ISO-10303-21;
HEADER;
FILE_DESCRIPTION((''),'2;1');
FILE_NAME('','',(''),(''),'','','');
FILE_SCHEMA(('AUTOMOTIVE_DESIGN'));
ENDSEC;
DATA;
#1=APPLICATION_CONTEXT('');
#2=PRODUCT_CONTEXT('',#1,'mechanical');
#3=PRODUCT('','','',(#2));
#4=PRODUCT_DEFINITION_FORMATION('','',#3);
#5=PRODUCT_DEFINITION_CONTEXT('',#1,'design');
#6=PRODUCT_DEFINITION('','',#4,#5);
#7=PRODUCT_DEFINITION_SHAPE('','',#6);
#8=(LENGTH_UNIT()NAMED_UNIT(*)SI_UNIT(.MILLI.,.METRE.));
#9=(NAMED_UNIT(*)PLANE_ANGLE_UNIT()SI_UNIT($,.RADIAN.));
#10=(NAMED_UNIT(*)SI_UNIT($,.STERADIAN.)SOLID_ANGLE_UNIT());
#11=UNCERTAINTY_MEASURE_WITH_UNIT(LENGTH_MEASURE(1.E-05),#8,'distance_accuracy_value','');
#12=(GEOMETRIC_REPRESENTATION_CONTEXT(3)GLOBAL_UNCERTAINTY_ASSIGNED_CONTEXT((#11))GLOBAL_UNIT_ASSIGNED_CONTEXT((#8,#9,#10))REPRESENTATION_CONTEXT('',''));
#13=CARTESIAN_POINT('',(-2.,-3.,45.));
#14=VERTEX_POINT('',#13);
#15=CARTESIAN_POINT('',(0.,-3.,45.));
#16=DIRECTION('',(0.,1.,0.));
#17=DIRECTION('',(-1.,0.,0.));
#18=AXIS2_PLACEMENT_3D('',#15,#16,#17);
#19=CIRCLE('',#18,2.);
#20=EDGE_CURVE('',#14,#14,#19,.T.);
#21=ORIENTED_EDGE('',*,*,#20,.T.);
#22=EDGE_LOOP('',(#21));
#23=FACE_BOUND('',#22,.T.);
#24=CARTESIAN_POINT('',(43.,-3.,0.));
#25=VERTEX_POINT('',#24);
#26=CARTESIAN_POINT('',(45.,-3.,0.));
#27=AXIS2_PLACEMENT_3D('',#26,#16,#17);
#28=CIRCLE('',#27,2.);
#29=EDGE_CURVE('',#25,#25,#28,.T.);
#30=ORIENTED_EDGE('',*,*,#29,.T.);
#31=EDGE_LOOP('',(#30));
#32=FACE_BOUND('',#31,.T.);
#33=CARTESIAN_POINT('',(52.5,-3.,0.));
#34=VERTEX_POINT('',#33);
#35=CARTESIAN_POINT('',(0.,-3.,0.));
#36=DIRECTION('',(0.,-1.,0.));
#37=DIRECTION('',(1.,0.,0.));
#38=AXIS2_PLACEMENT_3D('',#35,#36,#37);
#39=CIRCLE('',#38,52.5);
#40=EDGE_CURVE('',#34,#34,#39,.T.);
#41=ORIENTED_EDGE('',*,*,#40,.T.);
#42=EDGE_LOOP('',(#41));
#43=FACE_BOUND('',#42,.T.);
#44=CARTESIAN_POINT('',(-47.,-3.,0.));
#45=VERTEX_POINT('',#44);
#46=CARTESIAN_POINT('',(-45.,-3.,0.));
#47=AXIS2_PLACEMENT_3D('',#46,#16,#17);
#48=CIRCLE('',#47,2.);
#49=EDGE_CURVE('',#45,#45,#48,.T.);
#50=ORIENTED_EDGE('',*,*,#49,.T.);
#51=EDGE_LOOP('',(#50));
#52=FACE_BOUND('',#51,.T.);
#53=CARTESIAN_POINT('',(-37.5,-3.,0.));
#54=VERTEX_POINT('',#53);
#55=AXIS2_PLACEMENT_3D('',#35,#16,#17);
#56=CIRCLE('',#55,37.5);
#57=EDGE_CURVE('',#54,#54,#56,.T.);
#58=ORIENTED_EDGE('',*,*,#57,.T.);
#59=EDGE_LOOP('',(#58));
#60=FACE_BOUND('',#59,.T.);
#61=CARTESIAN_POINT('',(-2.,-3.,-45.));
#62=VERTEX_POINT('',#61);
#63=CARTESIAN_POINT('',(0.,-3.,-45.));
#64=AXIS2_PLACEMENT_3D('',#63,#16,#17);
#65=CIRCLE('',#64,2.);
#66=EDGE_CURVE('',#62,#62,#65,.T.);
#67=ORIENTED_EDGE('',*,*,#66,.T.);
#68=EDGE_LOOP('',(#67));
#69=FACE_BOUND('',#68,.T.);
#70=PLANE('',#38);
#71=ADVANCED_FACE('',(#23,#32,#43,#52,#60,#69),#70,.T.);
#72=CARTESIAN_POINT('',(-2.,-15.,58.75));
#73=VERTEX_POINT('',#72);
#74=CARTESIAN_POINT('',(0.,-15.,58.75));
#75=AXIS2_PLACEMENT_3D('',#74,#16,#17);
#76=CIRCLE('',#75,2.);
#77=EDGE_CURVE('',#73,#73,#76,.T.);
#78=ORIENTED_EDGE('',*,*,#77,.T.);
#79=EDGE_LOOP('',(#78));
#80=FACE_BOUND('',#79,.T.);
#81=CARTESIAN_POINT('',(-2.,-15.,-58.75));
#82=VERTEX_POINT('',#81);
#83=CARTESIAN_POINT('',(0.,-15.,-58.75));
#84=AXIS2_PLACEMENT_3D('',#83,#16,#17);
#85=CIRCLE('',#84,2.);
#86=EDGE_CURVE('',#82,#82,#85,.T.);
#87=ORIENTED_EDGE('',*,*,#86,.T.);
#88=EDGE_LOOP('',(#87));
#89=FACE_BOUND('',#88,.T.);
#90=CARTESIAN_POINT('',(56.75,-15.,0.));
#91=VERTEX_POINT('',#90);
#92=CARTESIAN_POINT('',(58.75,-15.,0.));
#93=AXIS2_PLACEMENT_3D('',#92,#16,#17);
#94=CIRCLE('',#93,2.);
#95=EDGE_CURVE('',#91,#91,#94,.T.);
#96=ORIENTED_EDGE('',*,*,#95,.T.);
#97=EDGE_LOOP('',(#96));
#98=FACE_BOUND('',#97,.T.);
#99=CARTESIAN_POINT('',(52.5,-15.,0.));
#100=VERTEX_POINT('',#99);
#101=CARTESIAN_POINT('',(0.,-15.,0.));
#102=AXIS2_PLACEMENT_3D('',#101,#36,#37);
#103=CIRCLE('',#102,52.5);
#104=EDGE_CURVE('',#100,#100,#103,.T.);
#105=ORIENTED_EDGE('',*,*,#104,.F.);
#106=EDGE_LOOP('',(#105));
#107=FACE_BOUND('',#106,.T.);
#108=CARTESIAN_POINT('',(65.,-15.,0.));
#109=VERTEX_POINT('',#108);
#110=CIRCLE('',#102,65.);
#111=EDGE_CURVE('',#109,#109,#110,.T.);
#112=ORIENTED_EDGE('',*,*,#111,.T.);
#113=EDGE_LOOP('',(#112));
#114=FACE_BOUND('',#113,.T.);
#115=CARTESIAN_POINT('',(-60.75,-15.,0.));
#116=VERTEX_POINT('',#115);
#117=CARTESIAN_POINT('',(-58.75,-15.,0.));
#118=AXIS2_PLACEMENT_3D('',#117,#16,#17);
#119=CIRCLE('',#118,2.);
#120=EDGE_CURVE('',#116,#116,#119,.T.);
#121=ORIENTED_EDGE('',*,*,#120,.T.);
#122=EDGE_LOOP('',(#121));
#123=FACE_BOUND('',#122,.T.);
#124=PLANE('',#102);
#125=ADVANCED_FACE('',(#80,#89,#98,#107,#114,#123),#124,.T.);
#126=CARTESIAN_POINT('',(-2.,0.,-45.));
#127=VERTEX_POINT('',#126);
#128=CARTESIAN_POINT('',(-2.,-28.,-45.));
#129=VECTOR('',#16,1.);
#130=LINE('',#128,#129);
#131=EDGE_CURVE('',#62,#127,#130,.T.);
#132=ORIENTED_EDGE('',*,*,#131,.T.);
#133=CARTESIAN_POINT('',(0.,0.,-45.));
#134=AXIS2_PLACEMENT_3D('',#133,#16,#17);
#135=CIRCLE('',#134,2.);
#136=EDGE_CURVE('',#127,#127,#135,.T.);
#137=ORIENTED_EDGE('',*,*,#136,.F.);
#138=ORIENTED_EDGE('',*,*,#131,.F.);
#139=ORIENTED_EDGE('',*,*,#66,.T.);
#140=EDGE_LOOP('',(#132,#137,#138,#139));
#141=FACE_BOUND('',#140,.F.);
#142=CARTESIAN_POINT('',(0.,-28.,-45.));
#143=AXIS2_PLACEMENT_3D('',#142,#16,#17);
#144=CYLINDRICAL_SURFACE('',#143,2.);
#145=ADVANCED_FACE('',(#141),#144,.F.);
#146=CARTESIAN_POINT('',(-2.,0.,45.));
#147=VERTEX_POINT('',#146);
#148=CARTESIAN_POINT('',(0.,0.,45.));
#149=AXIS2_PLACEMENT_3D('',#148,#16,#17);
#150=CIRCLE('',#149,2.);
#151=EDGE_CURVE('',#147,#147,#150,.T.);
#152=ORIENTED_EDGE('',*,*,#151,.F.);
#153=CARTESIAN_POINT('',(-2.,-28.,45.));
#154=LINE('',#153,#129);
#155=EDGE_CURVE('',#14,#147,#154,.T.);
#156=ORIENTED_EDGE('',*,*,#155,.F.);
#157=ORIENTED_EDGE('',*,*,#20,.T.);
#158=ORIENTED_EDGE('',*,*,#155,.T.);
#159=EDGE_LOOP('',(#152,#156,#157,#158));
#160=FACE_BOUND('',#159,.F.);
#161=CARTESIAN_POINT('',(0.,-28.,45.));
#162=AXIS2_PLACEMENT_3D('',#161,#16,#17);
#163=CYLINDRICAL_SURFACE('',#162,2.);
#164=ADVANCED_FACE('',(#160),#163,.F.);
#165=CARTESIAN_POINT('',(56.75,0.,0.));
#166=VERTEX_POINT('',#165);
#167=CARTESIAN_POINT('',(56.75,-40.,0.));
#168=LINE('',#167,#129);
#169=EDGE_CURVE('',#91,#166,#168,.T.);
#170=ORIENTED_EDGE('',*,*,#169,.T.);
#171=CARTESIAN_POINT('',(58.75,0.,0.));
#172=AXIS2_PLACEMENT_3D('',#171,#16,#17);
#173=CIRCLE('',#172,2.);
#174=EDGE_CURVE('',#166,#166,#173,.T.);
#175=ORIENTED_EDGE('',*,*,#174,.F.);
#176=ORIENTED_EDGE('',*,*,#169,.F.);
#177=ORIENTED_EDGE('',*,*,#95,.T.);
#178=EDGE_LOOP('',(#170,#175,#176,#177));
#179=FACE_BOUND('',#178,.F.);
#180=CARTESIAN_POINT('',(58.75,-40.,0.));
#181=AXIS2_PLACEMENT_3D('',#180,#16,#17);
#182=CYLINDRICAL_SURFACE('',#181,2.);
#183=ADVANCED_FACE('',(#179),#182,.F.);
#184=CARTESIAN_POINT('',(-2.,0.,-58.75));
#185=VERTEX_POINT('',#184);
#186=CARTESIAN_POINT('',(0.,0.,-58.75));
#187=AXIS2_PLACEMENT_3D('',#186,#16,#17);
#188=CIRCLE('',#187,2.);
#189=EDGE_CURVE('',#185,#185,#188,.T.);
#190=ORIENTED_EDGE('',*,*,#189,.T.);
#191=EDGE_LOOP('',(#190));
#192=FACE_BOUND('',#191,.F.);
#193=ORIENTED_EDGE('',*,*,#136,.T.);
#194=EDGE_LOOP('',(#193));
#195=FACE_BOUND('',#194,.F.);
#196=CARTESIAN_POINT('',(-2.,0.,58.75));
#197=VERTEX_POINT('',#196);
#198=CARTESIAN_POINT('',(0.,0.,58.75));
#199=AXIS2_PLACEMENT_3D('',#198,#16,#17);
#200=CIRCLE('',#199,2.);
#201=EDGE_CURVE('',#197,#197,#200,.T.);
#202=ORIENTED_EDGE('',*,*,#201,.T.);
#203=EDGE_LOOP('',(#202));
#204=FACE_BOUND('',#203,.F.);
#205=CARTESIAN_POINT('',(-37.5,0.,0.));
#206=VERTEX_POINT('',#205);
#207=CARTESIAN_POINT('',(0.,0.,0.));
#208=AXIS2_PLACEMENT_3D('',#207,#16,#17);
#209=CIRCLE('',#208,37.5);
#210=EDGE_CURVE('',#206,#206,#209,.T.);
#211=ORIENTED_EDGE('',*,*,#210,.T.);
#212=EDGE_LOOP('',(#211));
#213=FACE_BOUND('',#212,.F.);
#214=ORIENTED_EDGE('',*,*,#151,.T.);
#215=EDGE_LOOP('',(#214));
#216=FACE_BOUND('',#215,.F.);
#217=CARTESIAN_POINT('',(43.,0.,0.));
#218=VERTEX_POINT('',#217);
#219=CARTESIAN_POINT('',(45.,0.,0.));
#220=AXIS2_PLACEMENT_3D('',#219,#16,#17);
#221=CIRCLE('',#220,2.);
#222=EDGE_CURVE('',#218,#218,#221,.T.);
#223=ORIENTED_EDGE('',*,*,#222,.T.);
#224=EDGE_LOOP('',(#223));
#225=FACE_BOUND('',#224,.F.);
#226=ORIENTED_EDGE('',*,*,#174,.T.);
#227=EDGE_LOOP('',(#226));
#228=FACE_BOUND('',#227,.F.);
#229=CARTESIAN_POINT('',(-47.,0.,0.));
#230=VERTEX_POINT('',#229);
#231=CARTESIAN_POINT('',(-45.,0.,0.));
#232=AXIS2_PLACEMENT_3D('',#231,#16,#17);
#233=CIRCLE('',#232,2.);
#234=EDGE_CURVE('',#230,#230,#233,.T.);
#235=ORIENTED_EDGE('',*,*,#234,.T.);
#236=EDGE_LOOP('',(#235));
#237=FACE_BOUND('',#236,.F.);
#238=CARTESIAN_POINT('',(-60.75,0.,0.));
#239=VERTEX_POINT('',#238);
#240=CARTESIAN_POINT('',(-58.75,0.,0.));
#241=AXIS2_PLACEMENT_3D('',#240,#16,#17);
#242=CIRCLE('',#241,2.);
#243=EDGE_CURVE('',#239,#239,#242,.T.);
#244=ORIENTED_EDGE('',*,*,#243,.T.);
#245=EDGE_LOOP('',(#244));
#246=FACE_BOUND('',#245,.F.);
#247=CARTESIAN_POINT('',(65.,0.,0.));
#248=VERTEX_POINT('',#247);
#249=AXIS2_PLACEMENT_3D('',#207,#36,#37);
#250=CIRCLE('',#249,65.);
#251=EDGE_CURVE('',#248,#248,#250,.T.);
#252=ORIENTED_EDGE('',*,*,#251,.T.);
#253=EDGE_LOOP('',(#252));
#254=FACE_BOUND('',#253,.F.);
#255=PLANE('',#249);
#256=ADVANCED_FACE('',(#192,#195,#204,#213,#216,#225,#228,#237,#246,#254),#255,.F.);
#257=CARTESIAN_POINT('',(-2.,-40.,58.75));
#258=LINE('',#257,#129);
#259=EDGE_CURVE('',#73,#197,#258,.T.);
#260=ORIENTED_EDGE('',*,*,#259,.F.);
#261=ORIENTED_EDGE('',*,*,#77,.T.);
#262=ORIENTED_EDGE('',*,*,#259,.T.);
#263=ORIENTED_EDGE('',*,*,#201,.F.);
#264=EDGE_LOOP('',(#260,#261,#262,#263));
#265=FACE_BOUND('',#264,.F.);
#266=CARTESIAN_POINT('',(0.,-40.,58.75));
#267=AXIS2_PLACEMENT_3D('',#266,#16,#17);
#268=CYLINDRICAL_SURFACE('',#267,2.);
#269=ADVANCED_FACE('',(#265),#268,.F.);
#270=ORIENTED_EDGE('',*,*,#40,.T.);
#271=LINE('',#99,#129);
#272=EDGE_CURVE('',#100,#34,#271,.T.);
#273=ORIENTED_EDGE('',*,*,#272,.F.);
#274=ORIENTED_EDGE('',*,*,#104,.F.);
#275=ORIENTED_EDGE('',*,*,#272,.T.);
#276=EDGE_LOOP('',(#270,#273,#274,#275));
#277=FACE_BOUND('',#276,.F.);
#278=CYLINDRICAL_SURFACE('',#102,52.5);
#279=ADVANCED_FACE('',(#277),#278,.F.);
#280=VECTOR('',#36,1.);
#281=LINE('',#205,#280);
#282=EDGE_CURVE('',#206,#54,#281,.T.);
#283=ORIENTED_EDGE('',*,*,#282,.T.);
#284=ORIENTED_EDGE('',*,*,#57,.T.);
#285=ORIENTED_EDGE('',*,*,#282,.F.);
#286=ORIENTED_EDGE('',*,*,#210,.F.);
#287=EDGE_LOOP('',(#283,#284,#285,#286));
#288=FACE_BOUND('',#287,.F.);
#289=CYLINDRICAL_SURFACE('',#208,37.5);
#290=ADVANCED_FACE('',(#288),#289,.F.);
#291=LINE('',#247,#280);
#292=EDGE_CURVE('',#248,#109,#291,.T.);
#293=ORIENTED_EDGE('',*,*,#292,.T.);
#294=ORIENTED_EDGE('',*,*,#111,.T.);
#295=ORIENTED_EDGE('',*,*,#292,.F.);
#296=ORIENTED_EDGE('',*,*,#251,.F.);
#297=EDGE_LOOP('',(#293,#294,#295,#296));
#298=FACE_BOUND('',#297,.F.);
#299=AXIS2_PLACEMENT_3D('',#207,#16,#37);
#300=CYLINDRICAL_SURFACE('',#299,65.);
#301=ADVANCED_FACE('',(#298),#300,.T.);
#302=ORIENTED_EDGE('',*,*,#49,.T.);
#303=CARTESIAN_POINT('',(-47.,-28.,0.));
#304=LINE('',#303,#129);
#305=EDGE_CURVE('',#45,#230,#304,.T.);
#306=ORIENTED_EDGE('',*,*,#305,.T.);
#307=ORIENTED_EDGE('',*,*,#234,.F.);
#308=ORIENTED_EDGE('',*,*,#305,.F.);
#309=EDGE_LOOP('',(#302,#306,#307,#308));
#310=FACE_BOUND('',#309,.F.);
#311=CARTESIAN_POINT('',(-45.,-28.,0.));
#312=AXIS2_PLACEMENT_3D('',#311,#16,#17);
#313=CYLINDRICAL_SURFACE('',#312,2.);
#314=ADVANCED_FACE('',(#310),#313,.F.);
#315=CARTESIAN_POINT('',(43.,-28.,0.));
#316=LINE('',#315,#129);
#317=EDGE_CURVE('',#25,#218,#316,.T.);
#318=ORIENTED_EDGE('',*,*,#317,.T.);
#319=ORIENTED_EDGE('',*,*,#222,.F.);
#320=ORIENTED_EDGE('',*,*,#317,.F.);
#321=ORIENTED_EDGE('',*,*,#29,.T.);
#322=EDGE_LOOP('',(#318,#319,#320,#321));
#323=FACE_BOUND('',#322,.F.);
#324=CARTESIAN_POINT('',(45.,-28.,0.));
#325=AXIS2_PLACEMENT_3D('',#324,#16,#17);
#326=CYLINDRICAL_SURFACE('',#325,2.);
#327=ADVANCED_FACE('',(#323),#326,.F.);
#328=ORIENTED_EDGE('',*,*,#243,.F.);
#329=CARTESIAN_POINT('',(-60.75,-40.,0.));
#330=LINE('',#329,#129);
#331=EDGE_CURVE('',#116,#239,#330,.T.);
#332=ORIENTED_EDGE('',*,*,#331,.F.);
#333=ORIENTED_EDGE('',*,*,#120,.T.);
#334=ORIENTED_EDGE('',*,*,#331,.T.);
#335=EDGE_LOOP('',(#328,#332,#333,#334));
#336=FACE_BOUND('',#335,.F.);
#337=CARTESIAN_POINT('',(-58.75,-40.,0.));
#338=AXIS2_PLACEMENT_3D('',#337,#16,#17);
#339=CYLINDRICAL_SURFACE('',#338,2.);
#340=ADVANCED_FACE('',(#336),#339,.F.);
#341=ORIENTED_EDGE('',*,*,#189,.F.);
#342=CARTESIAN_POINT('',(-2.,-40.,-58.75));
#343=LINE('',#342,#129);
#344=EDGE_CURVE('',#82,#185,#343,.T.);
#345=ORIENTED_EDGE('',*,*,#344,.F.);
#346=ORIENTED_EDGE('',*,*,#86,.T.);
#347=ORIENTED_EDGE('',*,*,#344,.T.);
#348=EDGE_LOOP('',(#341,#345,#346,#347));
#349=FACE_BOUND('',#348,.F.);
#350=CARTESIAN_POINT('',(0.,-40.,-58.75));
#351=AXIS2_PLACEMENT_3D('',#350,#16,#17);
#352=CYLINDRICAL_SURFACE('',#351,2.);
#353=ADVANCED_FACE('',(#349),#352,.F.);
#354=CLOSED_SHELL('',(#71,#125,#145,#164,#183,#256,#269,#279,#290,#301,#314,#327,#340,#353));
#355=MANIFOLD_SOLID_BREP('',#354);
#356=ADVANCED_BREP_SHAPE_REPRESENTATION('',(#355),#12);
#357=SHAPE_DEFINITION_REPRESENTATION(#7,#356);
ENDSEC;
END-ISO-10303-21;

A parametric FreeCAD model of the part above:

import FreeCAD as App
import Part
import Sketcher

V = App.Vector

doc = App.newDocument("Part")
params = doc.addObject("Spreadsheet::Sheet", "Params")
for row, (alias, value) in enumerate([
    ("sketch1_diameter", "130 mm"),
    ("pad1_length", "15 mm"),
    ("sketch2_diameter", "105 mm"),
    ("pocket1_length", "12 mm"),
    ("sketch3_diameter", "4 mm"),
    ("hole_diameter", "4 mm"),
    ("hole_depth", "25 mm"),
    ("sketch4_diameter", "4 mm"),
    ("hole2_diameter", "4 mm"),
    ("hole2_depth", "25 mm"),
    ("sketch5_diameter", "75 mm"),
    ("pocket2_length", "25 mm"),
], start=1):
    params.set(f"A{row}", alias)
    params.set(f"B{row}", "=" + value)
    params.setAlias(f"B{row}", alias)

body = doc.addObject("PartDesign::Body", "Body")

sketch1 = doc.addObject("Sketcher::SketchObject", "Sketch")
body.addObject(sketch1)
sketch1.AttachmentSupport = (doc.XZ_Plane, [""])
sketch1.MapMode = "FlatFace"
sketch1.addGeometry(Part.Circle(V(0, 0, 0), V(0, 0, 1), 65), False)
sketch1.addConstraint([
    Sketcher.Constraint("Coincident", 0, 3, -1, 1),
    Sketcher.Constraint("Diameter", 0, 130.0),
])
sketch1.setExpression("Constraints[1]", "Params.sketch1_diameter")
pad1 = doc.addObject("PartDesign::Pad", "Pad")
body.addObject(pad1)
pad1.Profile = sketch1
pad1.setExpression("Length", "Params.pad1_length")

sketch2 = doc.addObject("Sketcher::SketchObject", "Sketch001")
body.addObject(sketch2)
sketch2.AttachmentSupport = (doc.XZ_Plane, [""])
sketch2.MapMode = "FlatFace"
sketch2.AttachmentOffset = App.Placement(V(0, 0, 15), App.Rotation())
sketch2.addGeometry(Part.Circle(V(0, 0, 0), V(0, 0, 1), 52.5), False)
sketch2.addConstraint([
    Sketcher.Constraint("Coincident", 0, 3, -1, 1),
    Sketcher.Constraint("Diameter", 0, 105.0),
])
sketch2.setExpression("Constraints[1]", "Params.sketch2_diameter")
pocket1 = doc.addObject("PartDesign::Pocket", "Pocket")
body.addObject(pocket1)
pocket1.Profile = sketch2
pocket1.setExpression("Length", "Params.pocket1_length")

sketch3 = doc.addObject("Sketcher::SketchObject", "Sketch002")
body.addObject(sketch3)
sketch3.AttachmentSupport = (doc.XZ_Plane, [""])
sketch3.MapMode = "FlatFace"
sketch3.AttachmentOffset = App.Placement(V(0, 0, 15), App.Rotation())
sketch3.addGeometry([
    Part.Circle(V(-58.75, 0, 0), V(0, 0, 1), 2),
    Part.Circle(V(0, 58.75, 0), V(0, 0, 1), 2),
    Part.Circle(V(58.75, 0, 0), V(0, 0, 1), 2),
    Part.Circle(V(0, -58.75, 0), V(0, 0, 1), 2),
], False)
sketch3.addConstraint([
    Sketcher.Constraint("Equal", 0, 1),
    Sketcher.Constraint("Equal", 1, 2),
    Sketcher.Constraint("Equal", 2, 3),
    Sketcher.Constraint("Symmetric", 0, 3, 2, 3, -1, 1),
    Sketcher.Constraint("Symmetric", 1, 3, 3, 3, -1, 1),
    Sketcher.Constraint("PointOnObject", 0, 3, -1),
    Sketcher.Constraint("PointOnObject", 1, 3, -2),
    Sketcher.Constraint("Diameter", 0, 4.0),
    Sketcher.Constraint("DistanceX", 0, 3, 2, 3, 117.5),
    Sketcher.Constraint("DistanceY", 3, 3, 1, 3, 117.5),
])
sketch3.setExpression("Constraints[7]", "Params.sketch3_diameter")
doc.recompute()
hole = doc.addObject("PartDesign::Hole", "Hole")
body.addObject(hole)
hole.Profile = sketch3
hole.ThreadType = "None"
hole.setExpression("Diameter", "Params.hole_diameter")
hole.DepthType = "Dimension"
hole.setExpression("Depth", "Params.hole_depth")
hole.DrillPoint = "Flat"

sketch4 = doc.addObject("Sketcher::SketchObject", "Sketch003")
body.addObject(sketch4)
sketch4.AttachmentSupport = (doc.XZ_Plane, [""])
sketch4.MapMode = "FlatFace"
sketch4.AttachmentOffset = App.Placement(V(0, 0, 3), App.Rotation())
sketch4.addGeometry([
    Part.Circle(V(0, 45, 0), V(0, 0, 1), 2),
    Part.Circle(V(-45, 0, 0), V(0, 0, 1), 2),
    Part.Circle(V(45, 0, 0), V(0, 0, 1), 2),
    Part.Circle(V(0, -45, 0), V(0, 0, 1), 2),
], False)
sketch4.addConstraint([
    Sketcher.Constraint("Equal", 0, 1),
    Sketcher.Constraint("Equal", 1, 2),
    Sketcher.Constraint("Equal", 2, 3),
    Sketcher.Constraint("Symmetric", 1, 3, 2, 3, -1, 1),
    Sketcher.Constraint("Symmetric", 0, 3, 3, 3, -1, 1),
    Sketcher.Constraint("PointOnObject", 0, 3, -2),
    Sketcher.Constraint("PointOnObject", 1, 3, -1),
    Sketcher.Constraint("Diameter", 0, 4.0),
    Sketcher.Constraint("DistanceY", -1, 1, 0, 3, 45.0),
    Sketcher.Constraint("DistanceX", 1, 3, -1, 1, 45.0),
])
sketch4.setExpression("Constraints[7]", "Params.sketch4_diameter")
doc.recompute()
hole2 = doc.addObject("PartDesign::Hole", "Hole001")
body.addObject(hole2)
hole2.Profile = sketch4
hole2.ThreadType = "None"
hole2.setExpression("Diameter", "Params.hole2_diameter")
hole2.DepthType = "Dimension"
hole2.setExpression("Depth", "Params.hole2_depth")
hole2.DrillPoint = "Flat"

sketch5 = doc.addObject("Sketcher::SketchObject", "Sketch004")
body.addObject(sketch5)
sketch5.AttachmentSupport = (doc.XZ_Plane, [""])
sketch5.MapMode = "FlatFace"
sketch5.addGeometry(Part.Circle(V(0, 0, 0), V(0, 0, 1), 37.5), False)
sketch5.addConstraint([
    Sketcher.Constraint("Coincident", 0, 3, -1, 1),
    Sketcher.Constraint("Diameter", 0, 75.0),
])
sketch5.setExpression("Constraints[1]", "Params.sketch5_diameter")
pocket2 = doc.addObject("PartDesign::Pocket", "Pocket001")
body.addObject(pocket2)
pocket2.Profile = sketch5
pocket2.setExpression("Length", "Params.pocket2_length")
pocket2.Reversed = True

doc.recompute()
